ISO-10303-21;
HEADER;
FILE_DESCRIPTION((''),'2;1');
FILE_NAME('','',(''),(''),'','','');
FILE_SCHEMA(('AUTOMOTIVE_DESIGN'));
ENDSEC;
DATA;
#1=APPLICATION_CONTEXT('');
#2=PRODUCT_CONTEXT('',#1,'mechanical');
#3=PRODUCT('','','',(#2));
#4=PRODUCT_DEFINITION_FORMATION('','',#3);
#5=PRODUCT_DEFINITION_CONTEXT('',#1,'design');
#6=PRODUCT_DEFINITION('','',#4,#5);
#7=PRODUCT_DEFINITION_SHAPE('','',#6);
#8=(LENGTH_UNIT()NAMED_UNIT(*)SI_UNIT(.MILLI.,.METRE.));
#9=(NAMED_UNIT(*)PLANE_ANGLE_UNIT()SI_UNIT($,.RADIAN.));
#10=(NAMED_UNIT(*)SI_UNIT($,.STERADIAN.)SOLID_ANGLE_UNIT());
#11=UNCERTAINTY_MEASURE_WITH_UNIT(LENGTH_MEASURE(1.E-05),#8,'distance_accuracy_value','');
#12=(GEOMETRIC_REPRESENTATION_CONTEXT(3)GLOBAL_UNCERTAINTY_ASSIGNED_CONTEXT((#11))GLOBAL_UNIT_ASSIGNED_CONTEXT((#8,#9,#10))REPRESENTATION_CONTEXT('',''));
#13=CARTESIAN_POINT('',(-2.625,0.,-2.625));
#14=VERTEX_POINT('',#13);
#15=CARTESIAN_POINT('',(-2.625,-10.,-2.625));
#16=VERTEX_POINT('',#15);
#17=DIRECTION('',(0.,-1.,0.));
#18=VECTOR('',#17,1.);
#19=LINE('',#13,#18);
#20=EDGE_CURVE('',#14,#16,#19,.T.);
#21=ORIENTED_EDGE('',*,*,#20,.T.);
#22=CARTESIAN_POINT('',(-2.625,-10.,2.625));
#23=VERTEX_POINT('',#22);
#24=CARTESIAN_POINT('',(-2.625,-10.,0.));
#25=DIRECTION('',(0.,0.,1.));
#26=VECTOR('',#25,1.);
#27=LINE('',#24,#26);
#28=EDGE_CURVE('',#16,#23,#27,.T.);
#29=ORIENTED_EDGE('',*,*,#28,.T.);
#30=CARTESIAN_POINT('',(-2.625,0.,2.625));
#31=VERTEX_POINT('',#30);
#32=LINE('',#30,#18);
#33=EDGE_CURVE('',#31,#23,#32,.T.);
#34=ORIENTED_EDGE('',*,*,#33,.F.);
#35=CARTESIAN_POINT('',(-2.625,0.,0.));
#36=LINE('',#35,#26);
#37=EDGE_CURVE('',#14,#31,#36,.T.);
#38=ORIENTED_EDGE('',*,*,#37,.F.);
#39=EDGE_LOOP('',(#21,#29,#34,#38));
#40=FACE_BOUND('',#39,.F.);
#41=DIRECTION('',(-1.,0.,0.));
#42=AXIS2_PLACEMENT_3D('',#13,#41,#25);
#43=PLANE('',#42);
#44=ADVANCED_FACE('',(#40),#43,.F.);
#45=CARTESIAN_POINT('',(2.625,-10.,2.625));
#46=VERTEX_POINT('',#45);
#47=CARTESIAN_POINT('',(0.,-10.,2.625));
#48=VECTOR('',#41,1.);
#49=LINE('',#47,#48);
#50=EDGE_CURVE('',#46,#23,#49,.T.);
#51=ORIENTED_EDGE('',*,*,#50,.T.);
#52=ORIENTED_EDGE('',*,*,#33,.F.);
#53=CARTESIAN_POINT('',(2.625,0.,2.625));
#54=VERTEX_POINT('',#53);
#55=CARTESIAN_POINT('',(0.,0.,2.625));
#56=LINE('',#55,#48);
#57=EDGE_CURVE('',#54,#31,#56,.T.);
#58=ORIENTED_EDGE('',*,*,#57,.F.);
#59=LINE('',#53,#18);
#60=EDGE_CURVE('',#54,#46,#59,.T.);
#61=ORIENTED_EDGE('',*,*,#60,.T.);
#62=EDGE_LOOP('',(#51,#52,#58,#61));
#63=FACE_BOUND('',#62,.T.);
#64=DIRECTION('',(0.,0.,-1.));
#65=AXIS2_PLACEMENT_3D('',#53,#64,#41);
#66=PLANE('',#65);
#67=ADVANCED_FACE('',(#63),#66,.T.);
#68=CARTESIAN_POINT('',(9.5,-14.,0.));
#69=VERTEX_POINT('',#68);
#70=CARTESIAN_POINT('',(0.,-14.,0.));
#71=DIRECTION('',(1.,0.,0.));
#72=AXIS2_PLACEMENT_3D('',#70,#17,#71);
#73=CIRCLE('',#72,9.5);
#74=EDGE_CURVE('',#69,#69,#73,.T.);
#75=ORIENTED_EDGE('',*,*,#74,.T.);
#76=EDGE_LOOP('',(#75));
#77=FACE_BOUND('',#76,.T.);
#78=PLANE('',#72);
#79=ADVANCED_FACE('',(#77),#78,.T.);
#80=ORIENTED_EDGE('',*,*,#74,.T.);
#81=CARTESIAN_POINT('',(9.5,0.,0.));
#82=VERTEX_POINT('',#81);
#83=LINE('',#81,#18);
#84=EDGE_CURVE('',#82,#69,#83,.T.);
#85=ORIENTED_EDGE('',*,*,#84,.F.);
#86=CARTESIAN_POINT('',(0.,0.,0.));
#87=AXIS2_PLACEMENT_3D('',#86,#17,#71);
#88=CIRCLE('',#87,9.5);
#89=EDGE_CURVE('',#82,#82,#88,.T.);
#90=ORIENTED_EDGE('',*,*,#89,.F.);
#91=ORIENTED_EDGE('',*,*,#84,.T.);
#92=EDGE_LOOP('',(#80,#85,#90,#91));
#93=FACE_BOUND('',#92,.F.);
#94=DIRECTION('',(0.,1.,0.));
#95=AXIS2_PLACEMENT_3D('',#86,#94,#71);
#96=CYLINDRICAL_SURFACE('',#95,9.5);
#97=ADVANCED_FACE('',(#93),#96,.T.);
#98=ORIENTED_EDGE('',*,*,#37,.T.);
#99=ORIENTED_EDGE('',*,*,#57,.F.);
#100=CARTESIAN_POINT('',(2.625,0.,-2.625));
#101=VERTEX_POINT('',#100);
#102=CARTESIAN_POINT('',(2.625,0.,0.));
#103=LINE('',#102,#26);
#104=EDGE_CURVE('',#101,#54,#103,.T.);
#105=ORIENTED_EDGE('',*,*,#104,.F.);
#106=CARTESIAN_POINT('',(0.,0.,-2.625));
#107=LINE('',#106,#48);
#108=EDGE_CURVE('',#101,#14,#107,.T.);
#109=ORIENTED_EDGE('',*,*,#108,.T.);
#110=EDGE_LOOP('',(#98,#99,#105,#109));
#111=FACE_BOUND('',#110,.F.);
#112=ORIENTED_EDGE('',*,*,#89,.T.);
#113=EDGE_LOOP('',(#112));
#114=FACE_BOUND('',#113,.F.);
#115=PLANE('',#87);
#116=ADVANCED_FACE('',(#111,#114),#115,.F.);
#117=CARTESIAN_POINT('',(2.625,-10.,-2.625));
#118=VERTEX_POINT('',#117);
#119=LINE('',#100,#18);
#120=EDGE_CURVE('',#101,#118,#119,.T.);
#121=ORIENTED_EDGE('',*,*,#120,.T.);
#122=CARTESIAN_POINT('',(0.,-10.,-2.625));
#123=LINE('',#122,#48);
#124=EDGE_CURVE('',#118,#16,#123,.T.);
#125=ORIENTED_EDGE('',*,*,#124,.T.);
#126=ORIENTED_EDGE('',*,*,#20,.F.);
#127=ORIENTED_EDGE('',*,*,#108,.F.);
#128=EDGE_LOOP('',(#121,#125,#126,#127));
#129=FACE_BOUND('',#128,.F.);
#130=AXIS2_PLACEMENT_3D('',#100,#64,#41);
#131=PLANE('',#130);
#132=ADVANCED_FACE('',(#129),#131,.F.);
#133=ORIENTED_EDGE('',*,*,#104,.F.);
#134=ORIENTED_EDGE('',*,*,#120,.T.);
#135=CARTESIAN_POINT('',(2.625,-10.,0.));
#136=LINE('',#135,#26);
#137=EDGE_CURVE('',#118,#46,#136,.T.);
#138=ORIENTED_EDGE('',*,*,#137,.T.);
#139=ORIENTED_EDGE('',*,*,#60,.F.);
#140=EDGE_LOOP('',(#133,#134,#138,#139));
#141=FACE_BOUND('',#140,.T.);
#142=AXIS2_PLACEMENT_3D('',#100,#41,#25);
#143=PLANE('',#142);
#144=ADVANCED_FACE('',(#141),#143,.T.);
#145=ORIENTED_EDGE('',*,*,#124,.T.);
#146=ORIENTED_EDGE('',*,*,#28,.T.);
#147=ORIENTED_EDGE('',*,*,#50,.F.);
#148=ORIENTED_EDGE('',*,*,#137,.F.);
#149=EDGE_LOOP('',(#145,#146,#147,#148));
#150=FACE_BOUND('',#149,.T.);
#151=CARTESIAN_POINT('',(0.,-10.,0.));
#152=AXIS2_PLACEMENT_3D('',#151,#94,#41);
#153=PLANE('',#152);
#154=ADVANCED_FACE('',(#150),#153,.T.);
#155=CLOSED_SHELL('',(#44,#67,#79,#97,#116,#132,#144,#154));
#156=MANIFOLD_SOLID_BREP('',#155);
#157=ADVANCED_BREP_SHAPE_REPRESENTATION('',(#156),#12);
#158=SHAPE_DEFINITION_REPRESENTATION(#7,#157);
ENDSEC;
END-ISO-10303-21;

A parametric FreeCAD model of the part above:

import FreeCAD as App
import Part
import Sketcher
Q = App.Units.Quantity


def add_polygon(sketch, points):
    """Adds a closed chain of lines whose ends are joined by coincident constraints."""
    first, n = sketch.GeometryCount, len(points)
    for a, b in zip(points, points[1:] + points[:1]):
        sketch.addGeometry(Part.LineSegment(App.Vector(*a, 0), App.Vector(*b, 0)), False)
    for i in range(n):
        sketch.addConstraint(Sketcher.Constraint("Coincident", first + i, 2, first + (i + 1) % n, 1))

doc = App.newDocument("Part")
params = doc.addObject("Spreadsheet::Sheet", "Params")
for row, (alias, value) in enumerate([
    ("sketch1_diameter", "19 mm"),
    ("pad1_length", "14 mm"),
    ("sketch2_width", "5.25 mm"),
    ("pocket1_length", "10 mm"),
], start=1):
    params.set(f"A{row}", alias)
    params.set(f"B{row}", "=" + value)
    params.setAlias(f"B{row}", alias)

body = doc.addObject("PartDesign::Body", "Body")

# Sketch on XZ plane
sketch1 = doc.addObject("Sketcher::SketchObject", "Sketch")
body.addObject(sketch1)
sketch1.AttachmentSupport = (doc.XZ_Plane, [""])
sketch1.MapMode = "FlatFace"
sketch1.addGeometry(Part.Circle(App.Vector(0, 0, 0), App.Vector(0, 0, 1), 9.5), False)
sketch1.addConstraint([
    Sketcher.Constraint("Coincident", 0, 3, -1, 1),
    Sketcher.Constraint("Diameter", 0, Q("19 mm")),
])
sketch1.setExpression("Constraints[1]", "Params.sketch1_diameter")
pad1 = doc.addObject("PartDesign::Pad", "Pad")
body.addObject(pad1)
pad1.Profile = sketch1
pad1.setExpression("Length", "Params.pad1_length")

# Sketch on XZ plane
sketch2 = doc.addObject("Sketcher::SketchObject", "Sketch001")
body.addObject(sketch2)
sketch2.AttachmentSupport = (doc.XZ_Plane, [""])
sketch2.MapMode = "FlatFace"
add_polygon(sketch2, [(2.625, 2.625), (2.625, -2.625), (-2.625, -2.625), (-2.625, 2.625)])  # lines 0-3
sketch2.addConstraint([
    Sketcher.Constraint("Vertical", 0),
    Sketcher.Constraint("Horizontal", 1),
    Sketcher.Constraint("Vertical", 2),
    Sketcher.Constraint("Horizontal", 3),
    Sketcher.Constraint("Symmetric", 0, 2, 2, 2, -1, 1),
    Sketcher.Constraint("Equal", 3, 0),
    Sketcher.Constraint("DistanceX", 1, 2, 1, 1, Q("5.25 mm")),
])
sketch2.setExpression("Constraints[10]", "Params.sketch2_width")
pocket1 = doc.addObject("PartDesign::Pocket", "Pocket")
body.addObject(pocket1)
pocket1.Profile = sketch2
pocket1.setExpression("Length", "Params.pocket1_length")
pocket1.Reversed = True

doc.recompute()
